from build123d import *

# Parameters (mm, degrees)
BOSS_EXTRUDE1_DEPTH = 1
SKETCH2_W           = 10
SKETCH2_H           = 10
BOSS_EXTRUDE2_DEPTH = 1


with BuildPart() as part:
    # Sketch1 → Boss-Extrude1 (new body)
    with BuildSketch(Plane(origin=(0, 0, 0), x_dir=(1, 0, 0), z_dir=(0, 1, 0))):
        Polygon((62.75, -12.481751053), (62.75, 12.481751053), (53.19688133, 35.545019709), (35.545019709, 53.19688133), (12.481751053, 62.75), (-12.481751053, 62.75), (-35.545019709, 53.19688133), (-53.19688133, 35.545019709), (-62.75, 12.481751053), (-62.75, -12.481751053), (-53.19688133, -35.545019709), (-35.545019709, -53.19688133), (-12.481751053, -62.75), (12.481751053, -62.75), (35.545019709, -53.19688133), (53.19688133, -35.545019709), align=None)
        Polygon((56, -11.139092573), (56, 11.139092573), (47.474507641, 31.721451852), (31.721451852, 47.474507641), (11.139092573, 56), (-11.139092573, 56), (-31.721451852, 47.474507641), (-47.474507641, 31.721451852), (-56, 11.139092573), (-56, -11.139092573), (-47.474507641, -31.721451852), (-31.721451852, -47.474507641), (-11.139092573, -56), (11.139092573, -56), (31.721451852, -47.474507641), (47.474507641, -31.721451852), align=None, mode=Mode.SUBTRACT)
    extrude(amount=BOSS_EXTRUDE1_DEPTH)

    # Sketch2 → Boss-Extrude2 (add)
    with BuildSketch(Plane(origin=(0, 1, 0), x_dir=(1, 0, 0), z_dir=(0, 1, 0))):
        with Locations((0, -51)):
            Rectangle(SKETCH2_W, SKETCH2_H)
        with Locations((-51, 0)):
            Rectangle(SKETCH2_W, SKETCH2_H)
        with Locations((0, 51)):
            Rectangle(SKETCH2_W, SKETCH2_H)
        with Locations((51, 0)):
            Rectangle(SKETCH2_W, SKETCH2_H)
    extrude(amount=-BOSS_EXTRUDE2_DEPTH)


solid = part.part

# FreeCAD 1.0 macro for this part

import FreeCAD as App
import Part
import Sketcher
Q = App.Units.Quantity

doc = App.newDocument("Part")
body = doc.addObject("PartDesign::Body", "Body")

sketch1 = body.newObject("Sketcher::SketchObject", "Sketch")
sketch1.AttachmentSupport = (doc.getObject("XZ_Plane"), [""])
sketch1.MapMode = "FlatFace"
sketch1.addGeometry([
    Part.LineSegment(App.Vector(63, 12, 0), App.Vector(63, -12, 0)),
    Part.LineSegment(App.Vector(63, -12, 0), App.Vector(53, -36, 0)),
    Part.LineSegment(App.Vector(53, -36, 0), App.Vector(36, -53, 0)),
    Part.LineSegment(App.Vector(36, -53, 0), App.Vector(12, -63, 0)),
    Part.LineSegment(App.Vector(12, -63, 0), App.Vector(-12, -63, 0)),
    Part.LineSegment(App.Vector(-12, -63, 0), App.Vector(-36, -53, 0)),
    Part.LineSegment(App.Vector(-36, -53, 0), App.Vector(-53, -36, 0)),
    Part.LineSegment(App.Vector(-53, -36, 0), App.Vector(-63, -12, 0)),
    Part.LineSegment(App.Vector(-63, -12, 0), App.Vector(-63, 12, 0)),
    Part.LineSegment(App.Vector(-63, 12, 0), App.Vector(-53, 36, 0)),
    Part.LineSegment(App.Vector(-53, 36, 0), App.Vector(-36, 53, 0)),
    Part.LineSegment(App.Vector(-36, 53, 0), App.Vector(-12, 63, 0)),
    Part.LineSegment(App.Vector(-12, 63, 0), App.Vector(12, 63, 0)),
    Part.LineSegment(App.Vector(12, 63, 0), App.Vector(36, 53, 0)),
    Part.LineSegment(App.Vector(36, 53, 0), App.Vector(53, 36, 0)),
    Part.LineSegment(App.Vector(53, 36, 0), App.Vector(63, 12, 0)),
    Part.LineSegment(App.Vector(56, -11, 0), App.Vector(56, 11, 0)),
    Part.LineSegment(App.Vector(56, 11, 0), App.Vector(47, 32, 0)),
    Part.LineSegment(App.Vector(47, 32, 0), App.Vector(32, 47, 0)),
    Part.LineSegment(App.Vector(32, 47, 0), App.Vector(11, 56, 0)),
    Part.LineSegment(App.Vector(11, 56, 0), App.Vector(-11, 56, 0)),
    Part.LineSegment(App.Vector(-11, 56, 0), App.Vector(-32, 47, 0)),
    Part.LineSegment(App.Vector(-32, 47, 0), App.Vector(-47, 32, 0)),
    Part.LineSegment(App.Vector(-47, 32, 0), App.Vector(-56, 11, 0)),
    Part.LineSegment(App.Vector(-56, 11, 0), App.Vector(-56, -11, 0)),
    Part.LineSegment(App.Vector(-56, -11, 0), App.Vector(-47, -32, 0)),
    Part.LineSegment(App.Vector(-47, -32, 0), App.Vector(-32, -47, 0)),
    Part.LineSegment(App.Vector(-32, -47, 0), App.Vector(-11, -56, 0)),
    Part.LineSegment(App.Vector(-11, -56, 0), App.Vector(11, -56, 0)),
    Part.LineSegment(App.Vector(11, -56, 0), App.Vector(32, -47, 0)),
    Part.LineSegment(App.Vector(32, -47, 0), App.Vector(47, -32, 0)),
    Part.LineSegment(App.Vector(47, -32, 0), App.Vector(56, -11, 0)),
], False)
sketch1.addConstraint([
    Sketcher.Constraint("Coincident", 0, 2, 1, 1),
    Sketcher.Constraint("Coincident", 1, 2, 2, 1),
    Sketcher.Constraint("Coincident", 2, 2, 3, 1),
    Sketcher.Constraint("Coincident", 3, 2, 4, 1),
    Sketcher.Constraint("Coincident", 4, 2, 5, 1),
    Sketcher.Constraint("Coincident", 5, 2, 6, 1),
    Sketcher.Constraint("Coincident", 6, 2, 7, 1),
    Sketcher.Constraint("Coincident", 7, 2, 8, 1),
    Sketcher.Constraint("Coincident", 8, 2, 9, 1),
    Sketcher.Constraint("Coincident", 9, 2, 10, 1),
    Sketcher.Constraint("Coincident", 10, 2, 11, 1),
    Sketcher.Constraint("Coincident", 11, 2, 12, 1),
    Sketcher.Constraint("Coincident", 12, 2, 13, 1),
    Sketcher.Constraint("Coincident", 13, 2, 14, 1),
    Sketcher.Constraint("Coincident", 14, 2, 15, 1),
    Sketcher.Constraint("Coincident", 15, 2, 0, 1),
    Sketcher.Constraint("Coincident", 16, 2, 17, 1),
    Sketcher.Constraint("Coincident", 17, 2, 18, 1),
    Sketcher.Constraint("Coincident", 18, 2, 19, 1),
    Sketcher.Constraint("Coincident", 19, 2, 20, 1),
    Sketcher.Constraint("Coincident", 20, 2, 21, 1),
    Sketcher.Constraint("Coincident", 21, 2, 22, 1),
    Sketcher.Constraint("Coincident", 22, 2, 23, 1),
    Sketcher.Constraint("Coincident", 23, 2, 24, 1),
    Sketcher.Constraint("Coincident", 24, 2, 25, 1),
    Sketcher.Constraint("Coincident", 25, 2, 26, 1),
    Sketcher.Constraint("Coincident", 26, 2, 27, 1),
    Sketcher.Constraint("Coincident", 27, 2, 28, 1),
    Sketcher.Constraint("Coincident", 28, 2, 29, 1),
    Sketcher.Constraint("Coincident", 29, 2, 30, 1),
    Sketcher.Constraint("Coincident", 30, 2, 31, 1),
    Sketcher.Constraint("Coincident", 31, 2, 16, 1),
    Sketcher.Constraint("Vertical", 0),
    Sketcher.Constraint("Horizontal", 4),
    Sketcher.Constraint("Vertical", 8),
    Sketcher.Constraint("Horizontal", 12),
    Sketcher.Constraint("Vertical", 16),
    Sketcher.Constraint("Horizontal", 20),
    Sketcher.Constraint("Vertical", 24),
    Sketcher.Constraint("Horizontal", 28),
    Sketcher.Constraint("Symmetric", 0, 2, 8, 2, -1, 1),
    Sketcher.Constraint("Symmetric", 1, 2, 9, 2, -1, 1),
    Sketcher.Constraint("Symmetric", 2, 2, 10, 2, -1, 1),
    Sketcher.Constraint("Symmetric", 3, 2, 11, 2, -1, 1),
    Sketcher.Constraint("Symmetric", 5, 2, 13, 2, -1, 1),
    Sketcher.Constraint("Symmetric", 6, 2, 14, 2, -1, 1),
    Sketcher.Constraint("Symmetric", 16, 2, 24, 2, -1, 1),
    Sketcher.Constraint("Symmetric", 17, 2, 25, 2, -1, 1),
    Sketcher.Constraint("Symmetric", 18, 2, 26, 2, -1, 1),
    Sketcher.Constraint("Symmetric", 19, 2, 27, 2, -1, 1),
    Sketcher.Constraint("Symmetric", 21, 2, 29, 2, -1, 1),
    Sketcher.Constraint("Symmetric", 22, 2, 30, 2, -1, 1),
    Sketcher.Constraint("Symmetric", 2, 2, 5, 2, -2),
    Sketcher.Constraint("Symmetric", 1, 2, 6, 2, -2),
    Sketcher.Constraint("Symmetric", 18, 2, 21, 2, -2),
    Sketcher.Constraint("Symmetric", 17, 2, 22, 2, -2),
    Sketcher.Constraint("Perpendicular", 1, 5),
    Sketcher.Constraint("Perpendicular", 2, 6),
    Sketcher.Constraint("Perpendicular", 3, 7),
    Sketcher.Constraint("Perpendicular", 9, 13),
    Sketcher.Constraint("Perpendicular", 11, 15),
    Sketcher.Constraint("Parallel", 15, 17),
    Sketcher.Constraint("Parallel", 14, 18),
    Sketcher.Constraint("Parallel", 13, 19),
    Sketcher.Constraint("Perpendicular", 17, 21),
    Sketcher.Constraint("Perpendicular", 19, 23),
    Sketcher.Constraint("Perpendicular", 25, 29),
    Sketcher.Constraint("Perpendicular", 27, 31),
    Sketcher.Constraint("Horizontal", 0, 2, 7, 2),
    Sketcher.Constraint("Equal", 12, 0),
    Sketcher.Constraint("Equal", 28, 16),
    Sketcher.Constraint("Equal", 1, 2),
    Sketcher.Constraint("Equal", 2, 3),
    Sketcher.Constraint("Equal", 17, 18),
    Sketcher.Constraint("Equal", 18, 19),
    Sketcher.Constraint("DistanceX", -1, 1, 16, 2, 56.0),
    Sketcher.Constraint("Angle", 1, Q("-112.5 deg")),
    Sketcher.Constraint("DistanceX", -1, 1, 0, 2, 62.75),
    Sketcher.Constraint("DistanceX", 5, 2, 1, 2, 88.741901),
    Sketcher.Constraint("DistanceY", 15, 2, 17, 2, 19.239701),
])
pad1 = body.newObject("PartDesign::Pad", "Pad")
pad1.Profile = sketch1
pad1.Length = 1
pad1.Reversed = True

sketch2 = body.newObject("Sketcher::SketchObject", "Sketch001")
sketch2.AttachmentSupport = (doc.getObject("XZ_Plane"), [""])
sketch2.MapMode = "FlatFace"
sketch2.AttachmentOffset = App.Placement(App.Vector(0, 0, -1), App.Rotation())
sketch2.addGeometry([
    Part.LineSegment(App.Vector(-5, 46, 0), App.Vector(-5, 56, 0)),
    Part.LineSegment(App.Vector(-5, 56, 0), App.Vector(5, 56, 0)),
    Part.LineSegment(App.Vector(5, 56, 0), App.Vector(5, 46, 0)),
    Part.LineSegment(App.Vector(5, 46, 0), App.Vector(-5, 46, 0)),
    Part.LineSegment(App.Vector(-56, -5, 0), App.Vector(-56, 5, 0)),
    Part.LineSegment(App.Vector(-56, 5, 0), App.Vector(-46, 5, 0)),
    Part.LineSegment(App.Vector(-46, 5, 0), App.Vector(-46, -5, 0)),
    Part.LineSegment(App.Vector(-46, -5, 0), App.Vector(-56, -5, 0)),
    Part.LineSegment(App.Vector(-5, -56, 0), App.Vector(-5, -46, 0)),
    Part.LineSegment(App.Vector(-5, -46, 0), App.Vector(5, -46, 0)),
    Part.LineSegment(App.Vector(5, -46, 0), App.Vector(5, -56, 0)),
    Part.LineSegment(App.Vector(5, -56, 0), App.Vector(-5, -56, 0)),
    Part.LineSegment(App.Vector(46, -5, 0), App.Vector(46, 5, 0)),
    Part.LineSegment(App.Vector(46, 5, 0), App.Vector(56, 5, 0)),
    Part.LineSegment(App.Vector(56, 5, 0), App.Vector(56, -5, 0)),
    Part.LineSegment(App.Vector(56, -5, 0), App.Vector(46, -5, 0)),
], False)
sketch2.addConstraint([
    Sketcher.Constraint("Coincident", 0, 2, 1, 1),
    Sketcher.Constraint("Coincident", 1, 2, 2, 1),
    Sketcher.Constraint("Coincident", 2, 2, 3, 1),
    Sketcher.Constraint("Coincident", 3, 2, 0, 1),
    Sketcher.Constraint("Coincident", 4, 2, 5, 1),
    Sketcher.Constraint("Coincident", 5, 2, 6, 1),
    Sketcher.Constraint("Coincident", 6, 2, 7, 1),
    Sketcher.Constraint("Coincident", 7, 2, 4, 1),
    Sketcher.Constraint("Coincident", 8, 2, 9, 1),
    Sketcher.Constraint("Coincident", 9, 2, 10, 1),
    Sketcher.Constraint("Coincident", 10, 2, 11, 1),
    Sketcher.Constraint("Coincident", 11, 2, 8, 1),
    Sketcher.Constraint("Coincident", 12, 2, 13, 1),
    Sketcher.Constraint("Coincident", 13, 2, 14, 1),
    Sketcher.Constraint("Coincident", 14, 2, 15, 1),
    Sketcher.Constraint("Coincident", 15, 2, 12, 1),
    Sketcher.Constraint("Vertical", 0),
    Sketcher.Constraint("Horizontal", 1),
    Sketcher.Constraint("Vertical", 2),
    Sketcher.Constraint("Horizontal", 3),
    Sketcher.Constraint("Vertical", 4),
    Sketcher.Constraint("Horizontal", 5),
    Sketcher.Constraint("Vertical", 6),
    Sketcher.Constraint("Horizontal", 7),
    Sketcher.Constraint("Vertical", 8),
    Sketcher.Constraint("Horizontal", 9),
    Sketcher.Constraint("Vertical", 10),
    Sketcher.Constraint("Horizontal", 11),
    Sketcher.Constraint("Vertical", 12),
    Sketcher.Constraint("Horizontal", 13),
    Sketcher.Constraint("Vertical", 14),
    Sketcher.Constraint("Horizontal", 15),
    Sketcher.Constraint("Symmetric", 2, 2, 8, 2, -1, 1),
    Sketcher.Constraint("Symmetric", 0, 2, 10, 2, -1, 1),
    Sketcher.Constraint("Symmetric", 6, 2, 12, 2, -1, 1),
    Sketcher.Constraint("Symmetric", 4, 2, 14, 2, -1, 1),
    Sketcher.Constraint("Horizontal", 5, 2, 12, 2),
    Sketcher.Constraint("Vertical", 3, 2, 8, 2),
    Sketcher.Constraint("Equal", 3, 5),
    Sketcher.Constraint("Equal", 15, 0),
    Sketcher.Constraint("Equal", 2, 4),
    Sketcher.Constraint("DistanceX", 1, 1, 1, 2, 10.0),
    Sketcher.Constraint("DistanceY", -1, 1, 0, 2, 56.0),
    Sketcher.Constraint("DistanceX", 4, 2, -1, 1, 56.0),
])
pad2 = body.newObject("PartDesign::Pad", "Pad001")
pad2.Profile = sketch2
pad2.Length = 1

doc.recompute()
